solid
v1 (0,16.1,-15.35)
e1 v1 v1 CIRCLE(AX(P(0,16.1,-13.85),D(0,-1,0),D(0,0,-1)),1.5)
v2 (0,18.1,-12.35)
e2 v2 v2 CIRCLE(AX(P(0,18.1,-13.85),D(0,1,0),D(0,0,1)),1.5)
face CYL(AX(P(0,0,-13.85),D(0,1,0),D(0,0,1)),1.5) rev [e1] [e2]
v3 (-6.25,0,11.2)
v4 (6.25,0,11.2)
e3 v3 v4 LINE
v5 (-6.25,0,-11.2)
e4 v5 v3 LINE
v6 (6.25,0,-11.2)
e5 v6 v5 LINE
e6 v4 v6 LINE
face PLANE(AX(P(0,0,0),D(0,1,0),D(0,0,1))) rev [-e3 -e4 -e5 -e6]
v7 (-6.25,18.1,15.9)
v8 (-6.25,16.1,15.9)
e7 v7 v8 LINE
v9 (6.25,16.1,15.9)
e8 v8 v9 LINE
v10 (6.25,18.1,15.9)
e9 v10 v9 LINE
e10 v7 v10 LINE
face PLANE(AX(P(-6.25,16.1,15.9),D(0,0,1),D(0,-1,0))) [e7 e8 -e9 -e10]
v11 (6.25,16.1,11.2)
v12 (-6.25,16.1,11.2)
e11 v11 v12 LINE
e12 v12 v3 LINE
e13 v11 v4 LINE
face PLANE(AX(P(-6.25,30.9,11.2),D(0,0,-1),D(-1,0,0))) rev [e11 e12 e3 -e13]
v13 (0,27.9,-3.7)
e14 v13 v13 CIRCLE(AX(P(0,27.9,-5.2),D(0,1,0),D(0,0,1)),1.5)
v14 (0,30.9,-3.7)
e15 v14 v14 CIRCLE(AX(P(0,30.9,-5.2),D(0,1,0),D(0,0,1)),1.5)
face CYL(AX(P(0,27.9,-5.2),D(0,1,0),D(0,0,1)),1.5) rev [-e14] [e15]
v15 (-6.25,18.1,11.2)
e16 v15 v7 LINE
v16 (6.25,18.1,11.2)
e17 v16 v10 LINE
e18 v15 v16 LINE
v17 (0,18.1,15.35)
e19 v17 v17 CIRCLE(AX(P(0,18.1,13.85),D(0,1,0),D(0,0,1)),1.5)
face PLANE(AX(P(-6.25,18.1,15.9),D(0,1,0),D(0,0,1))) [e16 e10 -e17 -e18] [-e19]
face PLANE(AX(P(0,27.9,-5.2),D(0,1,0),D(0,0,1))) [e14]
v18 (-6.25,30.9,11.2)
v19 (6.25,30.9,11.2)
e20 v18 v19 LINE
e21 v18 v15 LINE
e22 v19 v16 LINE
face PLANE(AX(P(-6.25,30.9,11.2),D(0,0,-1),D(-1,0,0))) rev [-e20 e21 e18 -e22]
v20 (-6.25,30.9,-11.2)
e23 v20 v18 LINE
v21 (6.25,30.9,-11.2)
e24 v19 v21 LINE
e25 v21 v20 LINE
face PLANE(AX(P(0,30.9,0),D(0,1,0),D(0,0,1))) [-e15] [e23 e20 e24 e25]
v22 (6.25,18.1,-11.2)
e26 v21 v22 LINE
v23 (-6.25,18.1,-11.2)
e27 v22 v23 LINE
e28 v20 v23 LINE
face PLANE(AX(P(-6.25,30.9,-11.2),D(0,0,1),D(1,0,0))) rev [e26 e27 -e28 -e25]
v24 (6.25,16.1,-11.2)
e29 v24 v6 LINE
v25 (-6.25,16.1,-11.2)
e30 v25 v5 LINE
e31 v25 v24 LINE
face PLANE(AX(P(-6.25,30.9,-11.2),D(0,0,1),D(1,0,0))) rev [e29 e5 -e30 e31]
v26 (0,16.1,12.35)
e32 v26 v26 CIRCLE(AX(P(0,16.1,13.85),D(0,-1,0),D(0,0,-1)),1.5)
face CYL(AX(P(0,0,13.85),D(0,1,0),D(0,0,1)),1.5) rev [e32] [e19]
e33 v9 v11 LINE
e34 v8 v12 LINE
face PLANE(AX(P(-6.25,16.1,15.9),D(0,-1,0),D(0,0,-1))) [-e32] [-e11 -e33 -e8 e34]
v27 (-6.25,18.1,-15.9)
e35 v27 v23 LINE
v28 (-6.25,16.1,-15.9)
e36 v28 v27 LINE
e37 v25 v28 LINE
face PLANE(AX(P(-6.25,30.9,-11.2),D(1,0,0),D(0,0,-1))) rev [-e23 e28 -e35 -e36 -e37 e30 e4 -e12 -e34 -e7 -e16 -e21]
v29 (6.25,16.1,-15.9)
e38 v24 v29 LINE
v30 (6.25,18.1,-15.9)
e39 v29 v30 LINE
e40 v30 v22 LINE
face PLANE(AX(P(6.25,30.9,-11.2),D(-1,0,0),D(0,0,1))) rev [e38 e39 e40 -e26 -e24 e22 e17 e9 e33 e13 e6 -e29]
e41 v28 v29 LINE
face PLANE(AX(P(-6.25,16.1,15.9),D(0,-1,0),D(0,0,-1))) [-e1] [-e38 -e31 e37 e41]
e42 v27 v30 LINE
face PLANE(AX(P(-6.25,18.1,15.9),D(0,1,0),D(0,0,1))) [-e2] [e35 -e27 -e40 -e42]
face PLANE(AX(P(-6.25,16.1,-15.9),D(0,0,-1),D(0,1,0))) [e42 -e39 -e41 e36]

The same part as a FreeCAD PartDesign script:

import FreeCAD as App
import Part
import Sketcher

doc = App.newDocument("Part")
body = doc.addObject("PartDesign::Body", "Body")

# Sketch on XZ plane
sketch1 = doc.addObject("Sketcher::SketchObject", "Sketch")
body.addObject(sketch1)
sketch1.AttachmentSupport = (doc.XZ_Plane, [""])
sketch1.MapMode = "FlatFace"
sketch1.addGeometry([
    Part.LineSegment(App.Vector(-6.25, -11.2, 0), App.Vector(-6.25, 11.2, 0)),
    Part.LineSegment(App.Vector(-6.25, 11.2, 0), App.Vector(6.25, 11.2, 0)),
    Part.LineSegment(App.Vector(6.25, 11.2, 0), App.Vector(6.25, -11.2, 0)),
    Part.LineSegment(App.Vector(6.25, -11.2, 0), App.Vector(-6.25, -11.2, 0)),
], False)
sketch1.addConstraint([
    Sketcher.Constraint("Coincident", 0, 2, 1, 1),
    Sketcher.Constraint("Coincident", 1, 2, 2, 1),
    Sketcher.Constraint("Coincident", 2, 2, 3, 1),
    Sketcher.Constraint("Coincident", 3, 2, 0, 1),
    Sketcher.Constraint("Vertical", 0),
    Sketcher.Constraint("Horizontal", 1),
    Sketcher.Constraint("Vertical", 2),
    Sketcher.Constraint("Horizontal", 3),
    Sketcher.Constraint("Symmetric", 0, 2, 2, 2, -1, 1),
    Sketcher.Constraint("DistanceX", 1, 1, 1, 2, 12.5),
    Sketcher.Constraint("DistanceY", 0, 1, 0, 2, 22.4),
])
pad1 = doc.addObject("PartDesign::Pad", "Pad")
body.addObject(pad1)
pad1.Profile = sketch1
pad1.Length = 30.9
pad1.Reversed = True

# Sketch on YZ plane
sketch2 = doc.addObject("Sketcher::SketchObject", "Sketch001")
body.addObject(sketch2)
sketch2.AttachmentSupport = (doc.YZ_Plane, [""])
sketch2.MapMode = "FlatFace"
sketch2.AttachmentOffset = App.Placement(App.Vector(0, 0, 6.25), App.Rotation())
sketch2.addGeometry([
    Part.LineSegment(App.Vector(18.1, 15.9, 0), App.Vector(16.1, 15.9, 0)),
    Part.LineSegment(App.Vector(16.1, 15.9, 0), App.Vector(16.1, -15.9, 0)),
    Part.LineSegment(App.Vector(16.1, -15.9, 0), App.Vector(18.1, -15.9, 0)),
    Part.LineSegment(App.Vector(18.1, -15.9, 0), App.Vector(18.1, 15.9, 0)),
], False)
sketch2.addConstraint([
    Sketcher.Constraint("Coincident", 0, 2, 1, 1),
    Sketcher.Constraint("Coincident", 1, 2, 2, 1),
    Sketcher.Constraint("Coincident", 2, 2, 3, 1),
    Sketcher.Constraint("Coincident", 3, 2, 0, 1),
    Sketcher.Constraint("Horizontal", 0),
    Sketcher.Constraint("Vertical", 1),
    Sketcher.Constraint("Horizontal", 2),
    Sketcher.Constraint("Vertical", 3),
    Sketcher.Constraint("DistanceX", 0, 2, 0, 1, 2.0),
    Sketcher.Constraint("DistanceY", 1, 2, 1, 1, 31.8),
    Sketcher.Constraint("DistanceX", -1, 1, 0, 2, 16.1),
    Sketcher.Constraint("DistanceY", -1, 1, 0, 2, 15.9),
])
pad2 = doc.addObject("PartDesign::Pad", "Pad001")
body.addObject(pad2)
pad2.Profile = sketch2
pad2.Length = 12.5
pad2.Reversed = True

# Sketch on XZ plane
sketch3 = doc.addObject("Sketcher::SketchObject", "Sketch002")
body.addObject(sketch3)
sketch3.AttachmentSupport = (doc.XZ_Plane, [""])
sketch3.MapMode = "FlatFace"
sketch3.AttachmentOffset = App.Placement(App.Vector(0, 0, -18.1), App.Rotation())
sketch3.addGeometry([
    Part.Circle(App.Vector(0, -13.85, 0), App.Vector(0, 0, 1), 1.5),
    Part.Circle(App.Vector(0, 13.85, 0), App.Vector(0, 0, 1), 1.5),
], False)
sketch3.addConstraint([
    Sketcher.Constraint("Equal", 0, 1),
    Sketcher.Constraint("Symmetric", 0, 3, 1, 3, -1, 1),
    Sketcher.Constraint("PointOnObject", 0, 3, -2),
    Sketcher.Constraint("Diameter", 0, 3.0),
    Sketcher.Constraint("DistanceY", 0, 3, 1, 3, 27.7),
])
pocket1 = doc.addObject("PartDesign::Pocket", "Pocket")
body.addObject(pocket1)
pocket1.Profile = sketch3
pocket1.Type = "ThroughAll"
pocket1.Reversed = True

# Sketch on XZ plane
sketch4 = doc.addObject("Sketcher::SketchObject", "Sketch003")
body.addObject(sketch4)
sketch4.AttachmentSupport = (doc.XZ_Plane, [""])
sketch4.MapMode = "FlatFace"
sketch4.AttachmentOffset = App.Placement(App.Vector(0, 0, -30.9), App.Rotation())
sketch4.addGeometry(Part.Circle(App.Vector(0, -5.2, 0), App.Vector(0, 0, 1), 1.5), False)
sketch4.addConstraint([
    Sketcher.Constraint("PointOnObject", 0, 3, -2),
    Sketcher.Constraint("Diameter", 0, 3.0),
    Sketcher.Constraint("DistanceY", 0, 3, -1, 1, 5.2),
])
pocket2 = doc.addObject("PartDesign::Pocket", "Pocket001")
body.addObject(pocket2)
pocket2.Profile = sketch4
pocket2.Length = 3
pocket2.Reversed = True

doc.recompute()
